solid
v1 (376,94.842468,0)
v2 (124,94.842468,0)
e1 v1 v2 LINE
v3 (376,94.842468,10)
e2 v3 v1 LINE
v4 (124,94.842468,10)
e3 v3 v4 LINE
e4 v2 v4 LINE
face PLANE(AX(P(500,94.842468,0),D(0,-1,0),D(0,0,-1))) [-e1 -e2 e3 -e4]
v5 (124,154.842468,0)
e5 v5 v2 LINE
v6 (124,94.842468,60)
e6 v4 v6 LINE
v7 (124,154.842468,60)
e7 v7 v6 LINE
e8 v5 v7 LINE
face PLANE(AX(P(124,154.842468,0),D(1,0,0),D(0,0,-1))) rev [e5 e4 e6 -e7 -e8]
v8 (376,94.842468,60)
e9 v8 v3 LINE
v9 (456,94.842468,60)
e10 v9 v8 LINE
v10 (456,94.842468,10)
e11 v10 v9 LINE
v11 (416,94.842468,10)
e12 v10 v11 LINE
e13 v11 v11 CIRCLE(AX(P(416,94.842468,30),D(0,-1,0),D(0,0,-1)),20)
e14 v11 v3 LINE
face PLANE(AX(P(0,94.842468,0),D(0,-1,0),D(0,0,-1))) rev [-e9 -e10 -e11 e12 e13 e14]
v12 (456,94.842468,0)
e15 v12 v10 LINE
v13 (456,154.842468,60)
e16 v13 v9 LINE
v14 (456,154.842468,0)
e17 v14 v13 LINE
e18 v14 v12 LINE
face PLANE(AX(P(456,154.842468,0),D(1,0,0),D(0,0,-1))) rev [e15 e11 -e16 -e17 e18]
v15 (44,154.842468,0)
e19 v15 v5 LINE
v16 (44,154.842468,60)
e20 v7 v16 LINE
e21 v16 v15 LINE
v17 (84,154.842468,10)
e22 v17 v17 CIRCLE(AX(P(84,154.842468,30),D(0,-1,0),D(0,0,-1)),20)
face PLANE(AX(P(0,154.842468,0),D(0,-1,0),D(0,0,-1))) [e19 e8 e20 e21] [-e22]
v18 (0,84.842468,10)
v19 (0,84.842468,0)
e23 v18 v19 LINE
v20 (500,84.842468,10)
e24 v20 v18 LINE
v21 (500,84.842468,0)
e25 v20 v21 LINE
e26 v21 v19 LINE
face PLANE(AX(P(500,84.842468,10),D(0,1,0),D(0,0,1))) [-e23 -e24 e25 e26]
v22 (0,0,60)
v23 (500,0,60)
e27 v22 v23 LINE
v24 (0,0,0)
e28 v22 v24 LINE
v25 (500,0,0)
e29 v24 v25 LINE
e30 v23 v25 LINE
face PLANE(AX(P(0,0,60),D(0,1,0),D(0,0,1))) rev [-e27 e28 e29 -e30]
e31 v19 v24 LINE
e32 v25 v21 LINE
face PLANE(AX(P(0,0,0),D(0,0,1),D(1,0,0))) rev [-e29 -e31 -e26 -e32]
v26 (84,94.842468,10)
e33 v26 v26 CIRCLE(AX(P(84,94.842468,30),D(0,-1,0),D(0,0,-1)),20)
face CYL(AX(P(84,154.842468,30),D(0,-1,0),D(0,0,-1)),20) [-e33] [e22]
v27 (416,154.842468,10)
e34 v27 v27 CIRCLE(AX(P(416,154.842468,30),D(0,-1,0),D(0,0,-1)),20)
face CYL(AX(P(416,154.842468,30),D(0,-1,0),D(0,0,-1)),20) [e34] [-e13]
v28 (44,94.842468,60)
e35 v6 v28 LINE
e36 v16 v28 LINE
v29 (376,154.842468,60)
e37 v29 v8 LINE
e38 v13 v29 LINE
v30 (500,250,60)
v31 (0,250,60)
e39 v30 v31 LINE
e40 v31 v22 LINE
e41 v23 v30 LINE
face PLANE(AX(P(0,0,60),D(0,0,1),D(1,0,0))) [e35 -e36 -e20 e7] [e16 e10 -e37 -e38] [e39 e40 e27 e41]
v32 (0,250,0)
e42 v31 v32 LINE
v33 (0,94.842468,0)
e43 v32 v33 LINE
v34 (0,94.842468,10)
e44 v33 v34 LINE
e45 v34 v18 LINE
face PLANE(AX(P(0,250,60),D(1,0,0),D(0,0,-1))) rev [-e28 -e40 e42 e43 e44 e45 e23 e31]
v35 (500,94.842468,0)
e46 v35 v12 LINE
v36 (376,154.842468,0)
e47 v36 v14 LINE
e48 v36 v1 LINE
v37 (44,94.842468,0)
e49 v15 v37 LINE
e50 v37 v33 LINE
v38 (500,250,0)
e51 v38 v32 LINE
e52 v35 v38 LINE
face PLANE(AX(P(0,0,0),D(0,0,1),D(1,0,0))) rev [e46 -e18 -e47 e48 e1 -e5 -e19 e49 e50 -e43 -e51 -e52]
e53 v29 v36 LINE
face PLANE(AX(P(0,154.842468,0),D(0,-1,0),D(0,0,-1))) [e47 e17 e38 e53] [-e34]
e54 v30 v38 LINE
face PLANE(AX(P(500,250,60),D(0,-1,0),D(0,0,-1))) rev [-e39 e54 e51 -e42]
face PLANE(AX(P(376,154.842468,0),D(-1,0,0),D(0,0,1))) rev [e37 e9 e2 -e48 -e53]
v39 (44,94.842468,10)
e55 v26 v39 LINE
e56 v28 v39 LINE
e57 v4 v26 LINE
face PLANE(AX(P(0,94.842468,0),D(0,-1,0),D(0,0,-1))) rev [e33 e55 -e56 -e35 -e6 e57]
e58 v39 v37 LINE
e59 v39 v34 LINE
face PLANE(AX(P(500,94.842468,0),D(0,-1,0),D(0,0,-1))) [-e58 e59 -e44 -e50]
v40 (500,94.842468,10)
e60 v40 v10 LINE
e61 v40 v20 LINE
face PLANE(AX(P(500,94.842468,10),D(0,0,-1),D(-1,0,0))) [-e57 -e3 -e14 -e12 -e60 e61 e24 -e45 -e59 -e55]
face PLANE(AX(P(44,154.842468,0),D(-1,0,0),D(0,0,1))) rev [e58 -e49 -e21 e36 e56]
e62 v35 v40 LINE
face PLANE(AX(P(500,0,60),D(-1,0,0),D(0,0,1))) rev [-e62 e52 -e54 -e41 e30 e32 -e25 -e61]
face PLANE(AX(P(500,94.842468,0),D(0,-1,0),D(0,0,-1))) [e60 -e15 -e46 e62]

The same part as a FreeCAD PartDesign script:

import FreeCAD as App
import Part
import Sketcher

V = App.Vector
Q = App.Units.Quantity

doc = App.newDocument("Part")
body = doc.addObject("PartDesign::Body", "Body")

# Sketch on XY plane
sketch1 = doc.addObject("Sketcher::SketchObject", "Sketch")
body.addObject(sketch1)
sketch1.AttachmentSupport = (doc.XY_Plane, [""])
sketch1.MapMode = "FlatFace"
sketch1.addGeometry(Part.LineSegment(V(0, 250, 0), V(0, 0, 0)), False)
sketch1.addGeometry(Part.LineSegment(V(0, 0, 0), V(500, 0, 0)), False)
sketch1.addGeometry(Part.LineSegment(V(500, 0, 0), V(500, 250, 0)), False)
sketch1.addGeometry(Part.LineSegment(V(500, 250, 0), V(0, 250, 0)), False)
sketch1.addConstraint(Sketcher.Constraint("Coincident", 0, 2, 1, 1))
sketch1.addConstraint(Sketcher.Constraint("Coincident", 1, 2, 2, 1))
sketch1.addConstraint(Sketcher.Constraint("Coincident", 2, 2, 3, 1))
sketch1.addConstraint(Sketcher.Constraint("Coincident", 3, 2, 0, 1))
sketch1.addConstraint(Sketcher.Constraint("Vertical", 0))
sketch1.addConstraint(Sketcher.Constraint("Horizontal", 1))
sketch1.addConstraint(Sketcher.Constraint("Vertical", 2))
sketch1.addConstraint(Sketcher.Constraint("Horizontal", 3))
sketch1.addConstraint(Sketcher.Constraint("Coincident", 0, 2, -1, 1))
sketch1.addConstraint(Sketcher.Constraint("DistanceX", 1, 1, 1, 2, Q("500 mm")))
sketch1.addConstraint(Sketcher.Constraint("DistanceY", 0, 2, 0, 1, Q("250 mm")))
pad1 = doc.addObject("PartDesign::Pad", "Pad")
body.addObject(pad1)
pad1.Profile = sketch1
pad1.Length = 60

# Sketch on YZ plane
sketch2 = doc.addObject("Sketcher::SketchObject", "Sketch001")
body.addObject(sketch2)
sketch2.AttachmentSupport = (doc.YZ_Plane, [""])
sketch2.MapMode = "FlatFace"
sketch2.addGeometry(Part.LineSegment(V(94.842468, 10, 0), V(84.842468, 10, 0)), False)
sketch2.addGeometry(Part.LineSegment(V(84.842468, 10, 0), V(84.842468, 0, 0)), False)
sketch2.addGeometry(Part.LineSegment(V(84.842468, 0, 0), V(94.842468, 0, 0)), False)
sketch2.addGeometry(Part.LineSegment(V(94.842468, 0, 0), V(94.842468, 10, 0)), False)
sketch2.addConstraint(Sketcher.Constraint("Coincident", 0, 2, 1, 1))
sketch2.addConstraint(Sketcher.Constraint("Coincident", 1, 2, 2, 1))
sketch2.addConstraint(Sketcher.Constraint("Coincident", 2, 2, 3, 1))
sketch2.addConstraint(Sketcher.Constraint("Coincident", 3, 2, 0, 1))
sketch2.addConstraint(Sketcher.Constraint("Horizontal", 0))
sketch2.addConstraint(Sketcher.Constraint("Vertical", 1))
sketch2.addConstraint(Sketcher.Constraint("Horizontal", 2))
sketch2.addConstraint(Sketcher.Constraint("Vertical", 3))
sketch2.addConstraint(Sketcher.Constraint("PointOnObject", 1, 2, -1))
sketch2.addConstraint(Sketcher.Constraint("Equal", 2, 1))
sketch2.addConstraint(Sketcher.Constraint("DistanceX", 0, 2, 0, 1, Q("10 mm")))
sketch2.addConstraint(Sketcher.Constraint("DistanceX", -1, 1, 0, 2, Q("84.842468 mm")))
pocket1 = doc.addObject("PartDesign::Pocket", "Pocket")
body.addObject(pocket1)
pocket1.Profile = sketch2
pocket1.Length = 500
pocket1.Reversed = True

# Sketch on XZ plane
sketch3 = doc.addObject("Sketcher::SketchObject", "Sketch002")
body.addObject(sketch3)
sketch3.AttachmentSupport = (doc.XZ_Plane, [""])
sketch3.MapMode = "FlatFace"
sketch3.AttachmentOffset = App.Placement(V(0, 0, -94.842468), App.Rotation())
sketch3.addGeometry(Part.LineSegment(V(124, 60, 0), V(44, 60, 0)), False)
sketch3.addGeometry(Part.LineSegment(V(44, 60, 0), V(44, 0, 0)), False)
sketch3.addGeometry(Part.LineSegment(V(44, 0, 0), V(124, 0, 0)), False)
sketch3.addGeometry(Part.LineSegment(V(124, 0, 0), V(124, 60, 0)), False)
sketch3.addGeometry(Part.Circle(V(84, 30, 0), V(0, 0, 1), 20), False)
sketch3.addGeometry(Part.LineSegment(V(456, 60, 0), V(376, 60, 0)), False)
sketch3.addGeometry(Part.LineSegment(V(376, 60, 0), V(376, 0, 0)), False)
sketch3.addGeometry(Part.LineSegment(V(376, 0, 0), V(456, 0, 0)), False)
sketch3.addGeometry(Part.LineSegment(V(456, 0, 0), V(456, 60, 0)), False)
sketch3.addGeometry(Part.Circle(V(416, 30, 0), V(0, 0, 1), 20), False)
sketch3.addConstraint(Sketcher.Constraint("Coincident", 0, 2, 1, 1))
sketch3.addConstraint(Sketcher.Constraint("Coincident", 1, 2, 2, 1))
sketch3.addConstraint(Sketcher.Constraint("Coincident", 2, 2, 3, 1))
sketch3.addConstraint(Sketcher.Constraint("Coincident", 3, 2, 0, 1))
sketch3.addConstraint(Sketcher.Constraint("Coincident", 5, 2, 6, 1))
sketch3.addConstraint(Sketcher.Constraint("Coincident", 6, 2, 7, 1))
sketch3.addConstraint(Sketcher.Constraint("Coincident", 7, 2, 8, 1))
sketch3.addConstraint(Sketcher.Constraint("Coincident", 8, 2, 5, 1))
sketch3.addConstraint(Sketcher.Constraint("Horizontal", 0))
sketch3.addConstraint(Sketcher.Constraint("Vertical", 1))
sketch3.addConstraint(Sketcher.Constraint("Horizontal", 2))
sketch3.addConstraint(Sketcher.Constraint("Vertical", 3))
sketch3.addConstraint(Sketcher.Constraint("Horizontal", 5))
sketch3.addConstraint(Sketcher.Constraint("Vertical", 6))
sketch3.addConstraint(Sketcher.Constraint("Horizontal", 7))
sketch3.addConstraint(Sketcher.Constraint("Vertical", 8))
sketch3.addConstraint(Sketcher.Constraint("Equal", 4, 9))
sketch3.addConstraint(Sketcher.Constraint("PointOnObject", 1, 2, -1))
sketch3.addConstraint(Sketcher.Constraint("PointOnObject", 6, 2, -1))
sketch3.addConstraint(Sketcher.Constraint("Horizontal", 4, 3, 9, 3))
sketch3.addConstraint(Sketcher.Constraint("Horizontal", 3, 2, 5, 2))
sketch3.addConstraint(Sketcher.Constraint("Equal", 2, 5))
sketch3.addConstraint(Sketcher.Constraint("Diameter", 4, Q("40 mm")))
sketch3.addConstraint(Sketcher.Constraint("DistanceX", 0, 2, 0, 1, Q("80 mm")))
sketch3.addConstraint(Sketcher.Constraint("DistanceY", 1, 2, 1, 1, Q("60 mm")))
sketch3.addConstraint(Sketcher.Constraint("DistanceX", -1, 1, 4, 3, Q("84 mm")))
sketch3.addConstraint(Sketcher.Constraint("DistanceY", -1, 1, 4, 3, Q("30 mm")))
sketch3.addConstraint(Sketcher.Constraint("DistanceX", -1, 1, 9, 3, Q("416 mm")))
sketch3.addConstraint(Sketcher.Constraint("DistanceX", -1, 1, 0, 2, Q("44 mm")))
sketch3.addConstraint(Sketcher.Constraint("DistanceX", -1, 1, 5, 2, Q("376 mm")))
pocket2 = doc.addObject("PartDesign::Pocket", "Pocket001")
body.addObject(pocket2)
pocket2.Profile = sketch3
pocket2.Length = 60

doc.recompute()
